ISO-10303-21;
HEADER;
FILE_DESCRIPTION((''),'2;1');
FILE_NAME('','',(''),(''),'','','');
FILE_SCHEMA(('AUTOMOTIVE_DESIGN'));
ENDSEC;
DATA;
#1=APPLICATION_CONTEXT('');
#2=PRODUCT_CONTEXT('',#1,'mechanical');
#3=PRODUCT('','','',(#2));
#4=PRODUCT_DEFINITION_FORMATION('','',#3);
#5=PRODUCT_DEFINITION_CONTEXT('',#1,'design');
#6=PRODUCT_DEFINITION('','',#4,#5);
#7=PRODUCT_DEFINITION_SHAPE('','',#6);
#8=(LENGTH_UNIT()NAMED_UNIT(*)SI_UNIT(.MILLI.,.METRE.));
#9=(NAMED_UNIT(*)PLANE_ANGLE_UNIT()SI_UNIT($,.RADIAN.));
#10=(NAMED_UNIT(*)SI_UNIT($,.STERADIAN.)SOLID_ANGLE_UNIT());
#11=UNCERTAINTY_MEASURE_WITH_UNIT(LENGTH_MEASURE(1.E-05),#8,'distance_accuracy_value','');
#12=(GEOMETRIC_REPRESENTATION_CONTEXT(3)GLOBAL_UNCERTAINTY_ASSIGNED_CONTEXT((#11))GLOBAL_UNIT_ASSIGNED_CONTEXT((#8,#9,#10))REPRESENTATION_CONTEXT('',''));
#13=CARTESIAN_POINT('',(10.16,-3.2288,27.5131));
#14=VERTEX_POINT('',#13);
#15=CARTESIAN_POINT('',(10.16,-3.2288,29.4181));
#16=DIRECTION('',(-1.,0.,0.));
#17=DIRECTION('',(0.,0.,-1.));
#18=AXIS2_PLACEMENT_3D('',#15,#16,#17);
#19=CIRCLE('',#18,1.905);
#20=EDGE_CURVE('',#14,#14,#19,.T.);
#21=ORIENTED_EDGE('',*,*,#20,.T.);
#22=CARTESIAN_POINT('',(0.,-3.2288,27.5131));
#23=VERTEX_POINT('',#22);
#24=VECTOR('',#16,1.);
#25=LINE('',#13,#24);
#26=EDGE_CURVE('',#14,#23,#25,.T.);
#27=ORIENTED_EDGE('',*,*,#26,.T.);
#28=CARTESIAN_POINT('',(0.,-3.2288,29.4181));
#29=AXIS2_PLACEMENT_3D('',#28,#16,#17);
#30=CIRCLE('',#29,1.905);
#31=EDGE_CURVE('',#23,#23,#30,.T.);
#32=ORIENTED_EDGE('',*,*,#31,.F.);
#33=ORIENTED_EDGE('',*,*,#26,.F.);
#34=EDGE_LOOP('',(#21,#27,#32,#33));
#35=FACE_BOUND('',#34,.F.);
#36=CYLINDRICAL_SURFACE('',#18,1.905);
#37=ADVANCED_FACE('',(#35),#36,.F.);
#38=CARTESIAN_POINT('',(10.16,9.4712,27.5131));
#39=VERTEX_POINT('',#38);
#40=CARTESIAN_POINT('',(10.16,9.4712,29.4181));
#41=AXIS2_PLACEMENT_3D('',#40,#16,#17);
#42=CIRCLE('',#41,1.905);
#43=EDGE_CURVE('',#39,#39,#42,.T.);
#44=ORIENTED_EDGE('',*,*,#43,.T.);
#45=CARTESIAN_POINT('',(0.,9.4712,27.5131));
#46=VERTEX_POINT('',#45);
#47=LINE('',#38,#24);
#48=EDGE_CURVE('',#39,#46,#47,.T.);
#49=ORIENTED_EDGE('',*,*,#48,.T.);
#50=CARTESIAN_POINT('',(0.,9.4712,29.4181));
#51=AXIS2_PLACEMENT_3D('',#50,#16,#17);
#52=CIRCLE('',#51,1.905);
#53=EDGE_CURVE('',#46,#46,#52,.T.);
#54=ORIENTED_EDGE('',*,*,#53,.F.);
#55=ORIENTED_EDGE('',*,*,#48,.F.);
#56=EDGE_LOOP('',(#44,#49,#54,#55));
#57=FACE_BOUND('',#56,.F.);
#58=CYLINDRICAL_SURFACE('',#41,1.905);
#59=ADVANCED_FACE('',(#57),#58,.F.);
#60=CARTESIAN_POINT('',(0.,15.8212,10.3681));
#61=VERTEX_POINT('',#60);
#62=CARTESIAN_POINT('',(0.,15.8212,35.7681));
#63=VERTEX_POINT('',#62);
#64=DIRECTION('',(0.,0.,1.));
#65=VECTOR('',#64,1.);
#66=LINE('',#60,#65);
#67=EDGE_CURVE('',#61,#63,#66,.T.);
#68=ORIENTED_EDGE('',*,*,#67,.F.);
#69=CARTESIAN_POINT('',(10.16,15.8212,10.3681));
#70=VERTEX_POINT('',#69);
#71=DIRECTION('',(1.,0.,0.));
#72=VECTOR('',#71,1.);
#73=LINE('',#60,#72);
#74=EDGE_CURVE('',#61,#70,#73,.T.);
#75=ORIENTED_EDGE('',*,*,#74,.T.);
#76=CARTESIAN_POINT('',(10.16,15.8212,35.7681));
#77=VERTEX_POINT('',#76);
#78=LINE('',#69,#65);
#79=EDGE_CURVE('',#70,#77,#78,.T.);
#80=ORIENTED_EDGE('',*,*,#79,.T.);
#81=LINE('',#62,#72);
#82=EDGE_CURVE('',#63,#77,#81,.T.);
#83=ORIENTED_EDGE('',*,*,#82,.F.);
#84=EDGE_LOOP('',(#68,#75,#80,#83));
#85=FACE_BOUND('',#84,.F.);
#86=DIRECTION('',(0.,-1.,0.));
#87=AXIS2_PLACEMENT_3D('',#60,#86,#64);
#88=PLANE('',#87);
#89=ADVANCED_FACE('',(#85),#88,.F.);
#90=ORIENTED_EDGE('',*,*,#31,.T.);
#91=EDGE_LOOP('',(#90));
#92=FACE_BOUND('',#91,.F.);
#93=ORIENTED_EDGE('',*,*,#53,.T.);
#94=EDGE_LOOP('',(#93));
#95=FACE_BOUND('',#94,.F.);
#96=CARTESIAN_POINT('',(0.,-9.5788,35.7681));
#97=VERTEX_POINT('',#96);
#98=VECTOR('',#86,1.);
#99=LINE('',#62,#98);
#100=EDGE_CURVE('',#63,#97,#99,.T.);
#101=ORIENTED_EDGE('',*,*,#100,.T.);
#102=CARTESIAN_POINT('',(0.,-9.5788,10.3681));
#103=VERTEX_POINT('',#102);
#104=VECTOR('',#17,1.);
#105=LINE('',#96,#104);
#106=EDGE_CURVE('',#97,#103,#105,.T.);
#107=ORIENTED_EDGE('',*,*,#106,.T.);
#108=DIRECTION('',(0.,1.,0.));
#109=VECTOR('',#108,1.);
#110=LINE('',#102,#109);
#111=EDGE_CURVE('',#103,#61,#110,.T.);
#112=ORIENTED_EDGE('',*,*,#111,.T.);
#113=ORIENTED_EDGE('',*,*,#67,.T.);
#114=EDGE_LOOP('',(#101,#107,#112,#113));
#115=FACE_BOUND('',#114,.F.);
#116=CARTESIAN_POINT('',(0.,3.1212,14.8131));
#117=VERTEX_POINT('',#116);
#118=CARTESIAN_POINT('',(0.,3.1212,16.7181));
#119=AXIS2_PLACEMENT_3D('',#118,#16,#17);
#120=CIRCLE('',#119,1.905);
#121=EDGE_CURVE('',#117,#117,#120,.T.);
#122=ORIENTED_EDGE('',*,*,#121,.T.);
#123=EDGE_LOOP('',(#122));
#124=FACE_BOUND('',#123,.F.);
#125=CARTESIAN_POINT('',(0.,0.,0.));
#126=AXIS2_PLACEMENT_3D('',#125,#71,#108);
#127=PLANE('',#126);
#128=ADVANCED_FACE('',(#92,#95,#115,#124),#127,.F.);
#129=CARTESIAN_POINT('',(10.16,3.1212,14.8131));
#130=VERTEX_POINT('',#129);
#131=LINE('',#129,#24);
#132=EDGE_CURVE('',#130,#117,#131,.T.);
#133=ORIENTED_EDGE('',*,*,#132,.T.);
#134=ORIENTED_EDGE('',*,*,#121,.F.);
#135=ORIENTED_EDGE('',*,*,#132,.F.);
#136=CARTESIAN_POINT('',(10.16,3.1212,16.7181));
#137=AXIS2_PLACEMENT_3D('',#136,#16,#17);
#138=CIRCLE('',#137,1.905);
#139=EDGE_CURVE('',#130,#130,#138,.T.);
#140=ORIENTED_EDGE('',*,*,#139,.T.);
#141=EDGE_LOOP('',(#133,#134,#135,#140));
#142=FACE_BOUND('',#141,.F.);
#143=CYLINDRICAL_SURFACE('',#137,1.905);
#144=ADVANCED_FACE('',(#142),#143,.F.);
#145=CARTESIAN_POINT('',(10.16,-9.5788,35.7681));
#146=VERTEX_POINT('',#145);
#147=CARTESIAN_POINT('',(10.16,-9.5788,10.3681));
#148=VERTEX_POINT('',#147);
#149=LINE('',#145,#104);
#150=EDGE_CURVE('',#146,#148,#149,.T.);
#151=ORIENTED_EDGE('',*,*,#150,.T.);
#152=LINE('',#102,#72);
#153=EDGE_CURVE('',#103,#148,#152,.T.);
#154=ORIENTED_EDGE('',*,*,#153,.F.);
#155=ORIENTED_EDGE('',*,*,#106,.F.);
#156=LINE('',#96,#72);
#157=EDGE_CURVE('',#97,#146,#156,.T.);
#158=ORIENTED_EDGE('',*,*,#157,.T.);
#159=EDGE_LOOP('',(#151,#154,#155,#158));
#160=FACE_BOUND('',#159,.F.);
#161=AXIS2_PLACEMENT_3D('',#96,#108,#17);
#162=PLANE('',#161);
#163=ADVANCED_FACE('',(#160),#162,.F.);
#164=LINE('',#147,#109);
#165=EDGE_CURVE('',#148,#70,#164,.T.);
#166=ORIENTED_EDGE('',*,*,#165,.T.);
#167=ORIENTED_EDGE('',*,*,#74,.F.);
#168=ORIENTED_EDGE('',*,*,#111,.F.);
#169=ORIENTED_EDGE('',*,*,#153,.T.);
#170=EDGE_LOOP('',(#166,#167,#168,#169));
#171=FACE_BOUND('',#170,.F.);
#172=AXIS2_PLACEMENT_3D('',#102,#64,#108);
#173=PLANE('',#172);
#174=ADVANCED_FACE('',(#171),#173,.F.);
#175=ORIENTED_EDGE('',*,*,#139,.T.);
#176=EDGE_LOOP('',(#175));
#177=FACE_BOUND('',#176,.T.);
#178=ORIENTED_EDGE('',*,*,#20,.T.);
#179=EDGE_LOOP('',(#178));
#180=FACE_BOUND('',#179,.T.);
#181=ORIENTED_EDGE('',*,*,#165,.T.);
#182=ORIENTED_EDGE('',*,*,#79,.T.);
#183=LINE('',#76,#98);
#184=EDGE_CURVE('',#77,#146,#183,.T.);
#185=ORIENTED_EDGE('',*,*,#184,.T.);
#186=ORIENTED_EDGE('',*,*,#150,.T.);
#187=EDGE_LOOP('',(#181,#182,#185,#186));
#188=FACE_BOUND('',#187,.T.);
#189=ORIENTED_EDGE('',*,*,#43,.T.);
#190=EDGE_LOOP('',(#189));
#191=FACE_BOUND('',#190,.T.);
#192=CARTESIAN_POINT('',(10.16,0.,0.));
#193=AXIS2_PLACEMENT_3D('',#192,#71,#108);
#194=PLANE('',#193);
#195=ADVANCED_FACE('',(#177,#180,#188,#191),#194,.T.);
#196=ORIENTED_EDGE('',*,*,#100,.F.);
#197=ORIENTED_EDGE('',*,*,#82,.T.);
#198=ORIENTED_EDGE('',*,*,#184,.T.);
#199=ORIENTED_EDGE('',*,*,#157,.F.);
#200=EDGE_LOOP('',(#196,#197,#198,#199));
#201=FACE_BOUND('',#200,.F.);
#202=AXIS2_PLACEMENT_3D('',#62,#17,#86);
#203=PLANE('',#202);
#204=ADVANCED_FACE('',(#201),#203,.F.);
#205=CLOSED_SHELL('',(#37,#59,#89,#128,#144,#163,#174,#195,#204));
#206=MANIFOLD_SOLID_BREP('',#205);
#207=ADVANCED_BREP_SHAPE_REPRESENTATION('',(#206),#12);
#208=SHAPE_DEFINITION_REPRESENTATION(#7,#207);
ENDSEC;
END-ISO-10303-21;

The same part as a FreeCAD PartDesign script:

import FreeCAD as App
import Part
import Sketcher
Q = App.Units.Quantity


def add_polygon(sketch, points):
    """Adds a closed chain of lines whose ends are joined by coincident constraints."""
    first, n = sketch.GeometryCount, len(points)
    for a, b in zip(points, points[1:] + points[:1]):
        sketch.addGeometry(Part.LineSegment(App.Vector(*a, 0), App.Vector(*b, 0)), False)
    for i in range(n):
        sketch.addConstraint(Sketcher.Constraint("Coincident", first + i, 2, first + (i + 1) % n, 1))

doc = App.newDocument("Part")
body = doc.addObject("PartDesign::Body", "Body")

# Sketch on YZ plane
sketch1 = body.newObject("Sketcher::SketchObject", "Sketch")
sketch1.AttachmentSupport = (doc.getObject("YZ_Plane"), [""])
sketch1.MapMode = "FlatFace"
add_polygon(sketch1, [(16, 10), (16, 36), (-10, 36), (-10, 10)])  # lines 0-3
sketch1.addConstraint(Sketcher.Constraint("Vertical", 0))
sketch1.addConstraint(Sketcher.Constraint("Horizontal", 1))
sketch1.addConstraint(Sketcher.Constraint("Vertical", 2))
sketch1.addConstraint(Sketcher.Constraint("Horizontal", 3))
sketch1.addConstraint(Sketcher.Constraint("Equal", 3, 0))
sketch1.addConstraint(Sketcher.Constraint("DistanceX", 1, 2, 1, 1, Q("1 in")))
sketch1.addConstraint(Sketcher.Constraint("DistanceY", -1, 1, 0, 2, Q("1.4082 in")))
sketch1.addConstraint(Sketcher.Constraint("DistanceX", -1, 1, 0, 2, 15.8212))
pad1 = body.newObject("PartDesign::Pad", "Pad")
pad1.Profile = sketch1
pad1.Length = Q("0.4 in")

# Sketch on YZ plane
sketch2 = body.newObject("Sketcher::SketchObject", "Sketch001")
sketch2.AttachmentSupport = (doc.getObject("YZ_Plane"), [""])
sketch2.MapMode = "FlatFace"
sketch2.AttachmentOffset = App.Placement(App.Vector(0, 0, 0.4 * 25.4), App.Rotation())
sketch2.addGeometry(Part.Circle(App.Vector(9.5, 29.4, 0), App.Vector(0, 0, 1), 1.9), False)
sketch2.addGeometry(Part.Circle(App.Vector(-3.2, 29.4, 0), App.Vector(0, 0, 1), 1.9), False)
sketch2.addGeometry(Part.Circle(App.Vector(3.1, 16.7, 0), App.Vector(0, 0, 1), 1.9), False)
sketch2.addConstraint(Sketcher.Constraint("Equal", 0, 1))
sketch2.addConstraint(Sketcher.Constraint("Equal", 1, 2))
sketch2.addConstraint(Sketcher.Constraint("Horizontal", 0, 3, 1, 3))
sketch2.addConstraint(Sketcher.Constraint("Diameter", 0, Q("0.15 in")))
sketch2.addConstraint(Sketcher.Constraint("DistanceX", 1, 3, 0, 3, Q("0.5 in")))
sketch2.addConstraint(Sketcher.Constraint("DistanceY", 2, 3, 0, 3, Q("0.5 in")))
sketch2.addConstraint(Sketcher.Constraint("DistanceX", 2, 3, 0, 3, Q("0.25 in")))
sketch2.addConstraint(Sketcher.Constraint("DistanceY", -1, 1, 0, 3, Q("1.1582 in")))
sketch2.addConstraint(Sketcher.Constraint("DistanceX", -1, 1, 0, 3, 9.4712))
doc.recompute()
hole = body.newObject("PartDesign::Hole", "Hole")
hole.Profile = sketch2
hole.ThreadType = "None"
hole.Diameter = Q("0.15 in")
hole.DepthType = "Dimension"
hole.Depth = Q("0.432 in")
hole.DrillPoint = "Angled"
hole.DrillPointAngle = 118.188

doc.recompute()
